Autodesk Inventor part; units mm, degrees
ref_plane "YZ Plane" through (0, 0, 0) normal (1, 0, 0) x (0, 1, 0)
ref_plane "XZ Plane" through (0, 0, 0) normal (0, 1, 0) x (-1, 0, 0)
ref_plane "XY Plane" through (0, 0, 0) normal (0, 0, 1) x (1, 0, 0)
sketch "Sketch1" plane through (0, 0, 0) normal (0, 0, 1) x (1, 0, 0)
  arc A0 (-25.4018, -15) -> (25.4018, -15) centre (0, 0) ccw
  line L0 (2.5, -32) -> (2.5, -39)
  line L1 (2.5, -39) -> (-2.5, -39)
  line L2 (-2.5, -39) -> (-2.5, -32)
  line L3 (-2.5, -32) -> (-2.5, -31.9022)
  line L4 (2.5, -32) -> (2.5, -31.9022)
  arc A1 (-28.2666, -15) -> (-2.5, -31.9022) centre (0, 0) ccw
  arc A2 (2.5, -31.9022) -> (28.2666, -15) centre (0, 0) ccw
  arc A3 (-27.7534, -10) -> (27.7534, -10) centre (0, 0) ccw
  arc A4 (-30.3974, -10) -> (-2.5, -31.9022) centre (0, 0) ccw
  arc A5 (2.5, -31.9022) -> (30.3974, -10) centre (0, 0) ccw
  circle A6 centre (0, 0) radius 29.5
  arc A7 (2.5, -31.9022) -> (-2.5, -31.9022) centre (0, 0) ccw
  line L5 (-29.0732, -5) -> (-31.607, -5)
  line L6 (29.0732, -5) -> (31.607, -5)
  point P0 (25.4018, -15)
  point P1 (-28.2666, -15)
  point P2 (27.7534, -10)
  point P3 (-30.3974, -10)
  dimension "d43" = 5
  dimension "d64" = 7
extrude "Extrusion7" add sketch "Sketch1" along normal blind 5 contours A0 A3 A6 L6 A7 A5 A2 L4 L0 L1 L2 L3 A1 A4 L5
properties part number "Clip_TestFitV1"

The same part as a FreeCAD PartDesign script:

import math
import FreeCAD as App
import Part
import Sketcher

V = App.Vector

doc = App.newDocument("Part")
params = doc.addObject("Spreadsheet::Sheet", "Params")
for row, (alias, value) in enumerate([
    ("sketch1_width", "5 mm"),
    ("sketch1_radius", "32 mm"),
    ("sketch1_radius2", "29.5 mm"),
    ("pad1_length", "5 mm"),
], start=1):
    params.set(f"A{row}", alias)
    params.set(f"B{row}", "=" + value)
    params.setAlias(f"B{row}", alias)

body = doc.addObject("PartDesign::Body", "Body")

# Sketch on XY plane
sketch1 = body.newObject("Sketcher::SketchObject", "Sketch")
sketch1.AttachmentSupport = (doc.getObject("XY_Plane"), [""])
sketch1.MapMode = "FlatFace"
sketch1.addGeometry([
    Part.ArcOfCircle(Part.Circle(V(0, 0, 0), V(0, 0, 1), 29.5), math.radians(-170), math.radians(-10)),  # 0
    Part.LineSegment(V(-29.1, -5, 0), V(-31.6, -5, 0)),  # 1
    Part.ArcOfCircle(Part.Circle(V(0, 0, 0), V(0, 0, 1), 32), math.radians(-171.01), math.radians(-161.79)),  # 2
    Part.ArcOfCircle(Part.Circle(V(0, 0, 0), V(0, 0, 1), 32), math.radians(-161.79), math.radians(-152.05)),  # 3
    Part.ArcOfCircle(Part.Circle(V(0, 0, 0), V(0, 0, 1), 32), math.radians(-152), math.radians(-94)),  # 4
    Part.LineSegment(V(-2.5, -31.9, 0), V(-2.5, -39, 0)),  # 5
    Part.LineSegment(V(-2.5, -39, 0), V(2.5, -39, 0)),  # 6
    Part.LineSegment(V(2.5, -39, 0), V(2.5, -31.9, 0)),  # 7
    Part.ArcOfCircle(Part.Circle(V(0, 0, 0), V(0, 0, 1), 32), math.radians(-86), math.radians(-28)),  # 8
    Part.ArcOfCircle(Part.Circle(V(0, 0, 0), V(0, 0, 1), 32), math.radians(-27.95), math.radians(-18.21)),  # 9
    Part.ArcOfCircle(Part.Circle(V(0, 0, 0), V(0, 0, 1), 32), math.radians(-18.21), math.radians(-8.99)),  # 10
    Part.LineSegment(V(31.6, -5, 0), V(29.1, -5, 0)),  # 11
], False)
sketch1.addConstraint([
    Sketcher.Constraint("Coincident", 0, 1, 1, 1),
    Sketcher.Constraint("Coincident", 1, 2, 2, 1),
    Sketcher.Constraint("Tangent", 2, 2, 3, 1),
    Sketcher.Constraint("Tangent", 3, 2, 4, 1),
    Sketcher.Constraint("Coincident", 4, 2, 5, 1),
    Sketcher.Constraint("Coincident", 5, 2, 6, 1),
    Sketcher.Constraint("Coincident", 6, 2, 7, 1),
    Sketcher.Constraint("Coincident", 7, 2, 8, 1),
    Sketcher.Constraint("Tangent", 8, 2, 9, 1),
    Sketcher.Constraint("Tangent", 9, 2, 10, 1),
    Sketcher.Constraint("Coincident", 10, 2, 11, 1),
    Sketcher.Constraint("Coincident", 11, 2, 0, 2),
    Sketcher.Constraint("Horizontal", 1),
    Sketcher.Constraint("Vertical", 5),
    Sketcher.Constraint("Horizontal", 6),
    Sketcher.Constraint("Vertical", 7),
    Sketcher.Constraint("Horizontal", 11),
    Sketcher.Constraint("Coincident", 0, 3, -1, 1),
    Sketcher.Constraint("Coincident", 2, 3, -1, 1),
    Sketcher.Constraint("Coincident", 4, 3, -1, 1),
    Sketcher.Constraint("Coincident", 8, 3, -1, 1),
    Sketcher.Constraint("Coincident", 10, 3, -1, 1),
    Sketcher.Constraint("Equal", 4, 8),
    Sketcher.Constraint("Horizontal", 4, 2, 7, 2),
    Sketcher.Constraint("Horizontal", 3, 2, 8, 2),
    Sketcher.Constraint("Horizontal", 2, 2, 9, 2),
    Sketcher.Constraint("Horizontal", 1, 2, 10, 2),
    Sketcher.Constraint("DistanceX", 6, 1, 6, 2, 5.0),
    Sketcher.Constraint("DistanceY", 0, 1, -1, 1, 5.0),
    Sketcher.Constraint("Radius", 2, 32.0),
    Sketcher.Constraint("DistanceY", 2, 2, 1, 2, 5.0),
    Sketcher.Constraint("DistanceY", 3, 2, 2, 2, 5.0),
    Sketcher.Constraint("Radius", 0, 29.5),
    Sketcher.Constraint("DistanceY", 5, 2, -1, 1, 39.0),
])
sketch1.setExpression("Constraints[27]", "Params.sketch1_width")
sketch1.setExpression("Constraints[29]", "Params.sketch1_radius")
sketch1.setExpression("Constraints[32]", "Params.sketch1_radius2")
pad1 = body.newObject("PartDesign::Pad", "Pad")
pad1.Profile = sketch1
pad1.setExpression("Length", "Params.pad1_length")

doc.recompute()
